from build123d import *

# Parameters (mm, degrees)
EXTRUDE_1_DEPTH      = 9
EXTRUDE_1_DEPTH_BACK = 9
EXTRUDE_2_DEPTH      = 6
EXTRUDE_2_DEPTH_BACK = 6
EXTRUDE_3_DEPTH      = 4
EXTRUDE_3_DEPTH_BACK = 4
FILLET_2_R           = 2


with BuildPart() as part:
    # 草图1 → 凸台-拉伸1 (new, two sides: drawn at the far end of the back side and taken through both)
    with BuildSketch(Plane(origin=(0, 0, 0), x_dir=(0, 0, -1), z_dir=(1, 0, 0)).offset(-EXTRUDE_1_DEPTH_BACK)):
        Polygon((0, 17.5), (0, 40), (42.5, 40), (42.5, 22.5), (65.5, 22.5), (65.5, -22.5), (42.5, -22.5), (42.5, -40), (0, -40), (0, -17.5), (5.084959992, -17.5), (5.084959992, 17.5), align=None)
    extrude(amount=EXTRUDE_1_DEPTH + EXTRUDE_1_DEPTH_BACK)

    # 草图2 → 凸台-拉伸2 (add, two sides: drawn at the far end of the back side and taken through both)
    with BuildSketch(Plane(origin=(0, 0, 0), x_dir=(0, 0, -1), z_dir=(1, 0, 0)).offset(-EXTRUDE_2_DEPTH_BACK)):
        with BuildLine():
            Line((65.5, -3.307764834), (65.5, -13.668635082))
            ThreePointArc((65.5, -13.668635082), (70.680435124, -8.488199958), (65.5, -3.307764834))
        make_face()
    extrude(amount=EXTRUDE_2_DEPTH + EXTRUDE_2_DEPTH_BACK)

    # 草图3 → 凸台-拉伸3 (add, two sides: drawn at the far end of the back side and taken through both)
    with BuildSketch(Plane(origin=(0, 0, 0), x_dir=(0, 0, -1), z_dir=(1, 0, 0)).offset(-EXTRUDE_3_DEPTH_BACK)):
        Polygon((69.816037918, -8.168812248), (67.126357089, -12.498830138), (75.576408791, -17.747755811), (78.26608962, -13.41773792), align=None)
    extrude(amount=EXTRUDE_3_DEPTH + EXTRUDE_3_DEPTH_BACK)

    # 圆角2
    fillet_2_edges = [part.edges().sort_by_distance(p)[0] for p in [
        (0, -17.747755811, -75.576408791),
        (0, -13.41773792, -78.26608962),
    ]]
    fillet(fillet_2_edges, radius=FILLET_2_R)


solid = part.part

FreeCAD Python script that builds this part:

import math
import FreeCAD as App
import Part
import Sketcher
from FreeCAD import Vector


def edges_at(feature, points):
    """Names of the edges that pass closest to the given points."""
    edges = feature.Shape.Edges
    near = lambda p: min(range(len(edges)), key=lambda i: edges[i].distToShape(Part.Vertex(*p))[0])
    return sorted({f"Edge{near(p) + 1}" for p in points})


def add_polygon(sketch, points):
    """Adds a closed chain of lines whose ends are joined by coincident constraints."""
    first, n = sketch.GeometryCount, len(points)
    for a, b in zip(points, points[1:] + points[:1]):
        sketch.addGeometry(Part.LineSegment(App.Vector(*a, 0), App.Vector(*b, 0)), False)
    for i in range(n):
        sketch.addConstraint(Sketcher.Constraint("Coincident", first + i, 2, first + (i + 1) % n, 1))

doc = App.newDocument("Part")
body = doc.addObject("PartDesign::Body", "Body")

# Sketch on YZ plane
sketch1 = body.newObject("Sketcher::SketchObject", "Sketch")
sketch1.AttachmentSupport = (doc.getObject("YZ_Plane"), [""])
sketch1.MapMode = "FlatFace"
add_polygon(sketch1, [(40, 0), (18, 0), (18, -5), (-18, -5), (-18, 0), (-40, 0), (-40, -42), (-22, -42), (-22, -66), (22, -66), (22, -42), (40, -42)])  # lines 0-11
sketch1.addConstraint([
    Sketcher.Constraint("Horizontal", 0),
    Sketcher.Constraint("Vertical", 1),
    Sketcher.Constraint("Horizontal", 2),
    Sketcher.Constraint("Vertical", 3),
    Sketcher.Constraint("Horizontal", 4),
    Sketcher.Constraint("Vertical", 5),
    Sketcher.Constraint("Horizontal", 6),
    Sketcher.Constraint("Vertical", 7),
    Sketcher.Constraint("Horizontal", 8),
    Sketcher.Constraint("Vertical", 9),
    Sketcher.Constraint("Horizontal", 10),
    Sketcher.Constraint("Vertical", 11),
    Sketcher.Constraint("Symmetric", 0, 2, 3, 2, -1, 1),
    Sketcher.Constraint("Symmetric", 6, 2, 9, 2, -2),
    Sketcher.Constraint("Symmetric", 4, 2, 11, 2, -2),
    Sketcher.Constraint("DistanceX", 2, 2, 2, 1, 35.0),
    Sketcher.Constraint("DistanceX", 8, 1, 8, 2, 45.0),
    Sketcher.Constraint("DistanceY", 7, 2, 7, 1, 23.0),
    Sketcher.Constraint("DistanceX", 0, 2, 0, 1, 22.5),
    Sketcher.Constraint("DistanceY", 5, 2, 5, 1, 42.5),
    Sketcher.Constraint("DistanceY", 1, 2, 1, 1, 5.08496),
])
pad1 = body.newObject("PartDesign::Pad", "Pad")
pad1.Profile = sketch1
pad1.Type = "TwoLengths"
pad1.Length = 9
pad1.Length2 = 9

# Sketch on YZ plane
sketch2 = body.newObject("Sketcher::SketchObject", "Sketch001")
sketch2.AttachmentSupport = (doc.getObject("YZ_Plane"), [""])
sketch2.MapMode = "FlatFace"
sketch2.addGeometry([
    Part.LineSegment(Vector(-3, -66, 0), Vector(-14, -66, 0)),
    Part.ArcOfCircle(Part.Circle(Vector(-8, -66, 0), Vector(0, 0, 1), 5), math.radians(180), math.radians(360)),
], False)
sketch2.addConstraint([
    Sketcher.Constraint("Coincident", 0, 1, 1, 2),
    Sketcher.Constraint("Coincident", 1, 1, 0, 2),
    Sketcher.Constraint("Horizontal", 0),
    Sketcher.Constraint("Horizontal", 1, 3, 0, 1),
    Sketcher.Constraint("DistanceY", 1, 3, -1, 1, 65.5),
    Sketcher.Constraint("Radius", 1, 5.180435),
    Sketcher.Constraint("DistanceX", 1, 3, -1, 1, 8.4882),
])
pad2 = body.newObject("PartDesign::Pad", "Pad001")
pad2.Profile = sketch2
pad2.Type = "TwoLengths"
pad2.Length = 6
pad2.Length2 = 6

# Sketch on YZ plane
sketch3 = body.newObject("Sketcher::SketchObject", "Sketch002")
sketch3.AttachmentSupport = (doc.getObject("YZ_Plane"), [""])
sketch3.MapMode = "FlatFace"
add_polygon(sketch3, [(-8, -70), (-12, -67), (-18, -76), (-13, -78)])  # lines 0-3
sketch3.addConstraint([
    Sketcher.Constraint("Perpendicular", 0, 1),
    Sketcher.Constraint("Perpendicular", 1, 2),
    Sketcher.Constraint("Perpendicular", 2, 3),
    Sketcher.Constraint("DistanceX", 0, 2, -1, 1, 12.49883),
    Sketcher.Constraint("DistanceY", 1, 2, -1, 1, 75.576409),
    Sketcher.Constraint("DistanceY", 2, 2, -1, 1, 78.26609),
    Sketcher.Constraint("DistanceY", 1, 2, 0, 2, 8.450052),
    Sketcher.Constraint("Distance", 0, 5.097395),
])
pad3 = body.newObject("PartDesign::Pad", "Pad002")
pad3.Profile = sketch3
pad3.Type = "TwoLengths"
pad3.Length = 4
pad3.Length2 = 4
doc.recompute()

fillet = body.newObject("PartDesign::Fillet", "Fillet")
fillet.Base = (pad3, edges_at(pad3, [(0, -17.748, -75.576), (0, -13.418, -78.266)]))
fillet.Radius = 2

doc.recompute()
